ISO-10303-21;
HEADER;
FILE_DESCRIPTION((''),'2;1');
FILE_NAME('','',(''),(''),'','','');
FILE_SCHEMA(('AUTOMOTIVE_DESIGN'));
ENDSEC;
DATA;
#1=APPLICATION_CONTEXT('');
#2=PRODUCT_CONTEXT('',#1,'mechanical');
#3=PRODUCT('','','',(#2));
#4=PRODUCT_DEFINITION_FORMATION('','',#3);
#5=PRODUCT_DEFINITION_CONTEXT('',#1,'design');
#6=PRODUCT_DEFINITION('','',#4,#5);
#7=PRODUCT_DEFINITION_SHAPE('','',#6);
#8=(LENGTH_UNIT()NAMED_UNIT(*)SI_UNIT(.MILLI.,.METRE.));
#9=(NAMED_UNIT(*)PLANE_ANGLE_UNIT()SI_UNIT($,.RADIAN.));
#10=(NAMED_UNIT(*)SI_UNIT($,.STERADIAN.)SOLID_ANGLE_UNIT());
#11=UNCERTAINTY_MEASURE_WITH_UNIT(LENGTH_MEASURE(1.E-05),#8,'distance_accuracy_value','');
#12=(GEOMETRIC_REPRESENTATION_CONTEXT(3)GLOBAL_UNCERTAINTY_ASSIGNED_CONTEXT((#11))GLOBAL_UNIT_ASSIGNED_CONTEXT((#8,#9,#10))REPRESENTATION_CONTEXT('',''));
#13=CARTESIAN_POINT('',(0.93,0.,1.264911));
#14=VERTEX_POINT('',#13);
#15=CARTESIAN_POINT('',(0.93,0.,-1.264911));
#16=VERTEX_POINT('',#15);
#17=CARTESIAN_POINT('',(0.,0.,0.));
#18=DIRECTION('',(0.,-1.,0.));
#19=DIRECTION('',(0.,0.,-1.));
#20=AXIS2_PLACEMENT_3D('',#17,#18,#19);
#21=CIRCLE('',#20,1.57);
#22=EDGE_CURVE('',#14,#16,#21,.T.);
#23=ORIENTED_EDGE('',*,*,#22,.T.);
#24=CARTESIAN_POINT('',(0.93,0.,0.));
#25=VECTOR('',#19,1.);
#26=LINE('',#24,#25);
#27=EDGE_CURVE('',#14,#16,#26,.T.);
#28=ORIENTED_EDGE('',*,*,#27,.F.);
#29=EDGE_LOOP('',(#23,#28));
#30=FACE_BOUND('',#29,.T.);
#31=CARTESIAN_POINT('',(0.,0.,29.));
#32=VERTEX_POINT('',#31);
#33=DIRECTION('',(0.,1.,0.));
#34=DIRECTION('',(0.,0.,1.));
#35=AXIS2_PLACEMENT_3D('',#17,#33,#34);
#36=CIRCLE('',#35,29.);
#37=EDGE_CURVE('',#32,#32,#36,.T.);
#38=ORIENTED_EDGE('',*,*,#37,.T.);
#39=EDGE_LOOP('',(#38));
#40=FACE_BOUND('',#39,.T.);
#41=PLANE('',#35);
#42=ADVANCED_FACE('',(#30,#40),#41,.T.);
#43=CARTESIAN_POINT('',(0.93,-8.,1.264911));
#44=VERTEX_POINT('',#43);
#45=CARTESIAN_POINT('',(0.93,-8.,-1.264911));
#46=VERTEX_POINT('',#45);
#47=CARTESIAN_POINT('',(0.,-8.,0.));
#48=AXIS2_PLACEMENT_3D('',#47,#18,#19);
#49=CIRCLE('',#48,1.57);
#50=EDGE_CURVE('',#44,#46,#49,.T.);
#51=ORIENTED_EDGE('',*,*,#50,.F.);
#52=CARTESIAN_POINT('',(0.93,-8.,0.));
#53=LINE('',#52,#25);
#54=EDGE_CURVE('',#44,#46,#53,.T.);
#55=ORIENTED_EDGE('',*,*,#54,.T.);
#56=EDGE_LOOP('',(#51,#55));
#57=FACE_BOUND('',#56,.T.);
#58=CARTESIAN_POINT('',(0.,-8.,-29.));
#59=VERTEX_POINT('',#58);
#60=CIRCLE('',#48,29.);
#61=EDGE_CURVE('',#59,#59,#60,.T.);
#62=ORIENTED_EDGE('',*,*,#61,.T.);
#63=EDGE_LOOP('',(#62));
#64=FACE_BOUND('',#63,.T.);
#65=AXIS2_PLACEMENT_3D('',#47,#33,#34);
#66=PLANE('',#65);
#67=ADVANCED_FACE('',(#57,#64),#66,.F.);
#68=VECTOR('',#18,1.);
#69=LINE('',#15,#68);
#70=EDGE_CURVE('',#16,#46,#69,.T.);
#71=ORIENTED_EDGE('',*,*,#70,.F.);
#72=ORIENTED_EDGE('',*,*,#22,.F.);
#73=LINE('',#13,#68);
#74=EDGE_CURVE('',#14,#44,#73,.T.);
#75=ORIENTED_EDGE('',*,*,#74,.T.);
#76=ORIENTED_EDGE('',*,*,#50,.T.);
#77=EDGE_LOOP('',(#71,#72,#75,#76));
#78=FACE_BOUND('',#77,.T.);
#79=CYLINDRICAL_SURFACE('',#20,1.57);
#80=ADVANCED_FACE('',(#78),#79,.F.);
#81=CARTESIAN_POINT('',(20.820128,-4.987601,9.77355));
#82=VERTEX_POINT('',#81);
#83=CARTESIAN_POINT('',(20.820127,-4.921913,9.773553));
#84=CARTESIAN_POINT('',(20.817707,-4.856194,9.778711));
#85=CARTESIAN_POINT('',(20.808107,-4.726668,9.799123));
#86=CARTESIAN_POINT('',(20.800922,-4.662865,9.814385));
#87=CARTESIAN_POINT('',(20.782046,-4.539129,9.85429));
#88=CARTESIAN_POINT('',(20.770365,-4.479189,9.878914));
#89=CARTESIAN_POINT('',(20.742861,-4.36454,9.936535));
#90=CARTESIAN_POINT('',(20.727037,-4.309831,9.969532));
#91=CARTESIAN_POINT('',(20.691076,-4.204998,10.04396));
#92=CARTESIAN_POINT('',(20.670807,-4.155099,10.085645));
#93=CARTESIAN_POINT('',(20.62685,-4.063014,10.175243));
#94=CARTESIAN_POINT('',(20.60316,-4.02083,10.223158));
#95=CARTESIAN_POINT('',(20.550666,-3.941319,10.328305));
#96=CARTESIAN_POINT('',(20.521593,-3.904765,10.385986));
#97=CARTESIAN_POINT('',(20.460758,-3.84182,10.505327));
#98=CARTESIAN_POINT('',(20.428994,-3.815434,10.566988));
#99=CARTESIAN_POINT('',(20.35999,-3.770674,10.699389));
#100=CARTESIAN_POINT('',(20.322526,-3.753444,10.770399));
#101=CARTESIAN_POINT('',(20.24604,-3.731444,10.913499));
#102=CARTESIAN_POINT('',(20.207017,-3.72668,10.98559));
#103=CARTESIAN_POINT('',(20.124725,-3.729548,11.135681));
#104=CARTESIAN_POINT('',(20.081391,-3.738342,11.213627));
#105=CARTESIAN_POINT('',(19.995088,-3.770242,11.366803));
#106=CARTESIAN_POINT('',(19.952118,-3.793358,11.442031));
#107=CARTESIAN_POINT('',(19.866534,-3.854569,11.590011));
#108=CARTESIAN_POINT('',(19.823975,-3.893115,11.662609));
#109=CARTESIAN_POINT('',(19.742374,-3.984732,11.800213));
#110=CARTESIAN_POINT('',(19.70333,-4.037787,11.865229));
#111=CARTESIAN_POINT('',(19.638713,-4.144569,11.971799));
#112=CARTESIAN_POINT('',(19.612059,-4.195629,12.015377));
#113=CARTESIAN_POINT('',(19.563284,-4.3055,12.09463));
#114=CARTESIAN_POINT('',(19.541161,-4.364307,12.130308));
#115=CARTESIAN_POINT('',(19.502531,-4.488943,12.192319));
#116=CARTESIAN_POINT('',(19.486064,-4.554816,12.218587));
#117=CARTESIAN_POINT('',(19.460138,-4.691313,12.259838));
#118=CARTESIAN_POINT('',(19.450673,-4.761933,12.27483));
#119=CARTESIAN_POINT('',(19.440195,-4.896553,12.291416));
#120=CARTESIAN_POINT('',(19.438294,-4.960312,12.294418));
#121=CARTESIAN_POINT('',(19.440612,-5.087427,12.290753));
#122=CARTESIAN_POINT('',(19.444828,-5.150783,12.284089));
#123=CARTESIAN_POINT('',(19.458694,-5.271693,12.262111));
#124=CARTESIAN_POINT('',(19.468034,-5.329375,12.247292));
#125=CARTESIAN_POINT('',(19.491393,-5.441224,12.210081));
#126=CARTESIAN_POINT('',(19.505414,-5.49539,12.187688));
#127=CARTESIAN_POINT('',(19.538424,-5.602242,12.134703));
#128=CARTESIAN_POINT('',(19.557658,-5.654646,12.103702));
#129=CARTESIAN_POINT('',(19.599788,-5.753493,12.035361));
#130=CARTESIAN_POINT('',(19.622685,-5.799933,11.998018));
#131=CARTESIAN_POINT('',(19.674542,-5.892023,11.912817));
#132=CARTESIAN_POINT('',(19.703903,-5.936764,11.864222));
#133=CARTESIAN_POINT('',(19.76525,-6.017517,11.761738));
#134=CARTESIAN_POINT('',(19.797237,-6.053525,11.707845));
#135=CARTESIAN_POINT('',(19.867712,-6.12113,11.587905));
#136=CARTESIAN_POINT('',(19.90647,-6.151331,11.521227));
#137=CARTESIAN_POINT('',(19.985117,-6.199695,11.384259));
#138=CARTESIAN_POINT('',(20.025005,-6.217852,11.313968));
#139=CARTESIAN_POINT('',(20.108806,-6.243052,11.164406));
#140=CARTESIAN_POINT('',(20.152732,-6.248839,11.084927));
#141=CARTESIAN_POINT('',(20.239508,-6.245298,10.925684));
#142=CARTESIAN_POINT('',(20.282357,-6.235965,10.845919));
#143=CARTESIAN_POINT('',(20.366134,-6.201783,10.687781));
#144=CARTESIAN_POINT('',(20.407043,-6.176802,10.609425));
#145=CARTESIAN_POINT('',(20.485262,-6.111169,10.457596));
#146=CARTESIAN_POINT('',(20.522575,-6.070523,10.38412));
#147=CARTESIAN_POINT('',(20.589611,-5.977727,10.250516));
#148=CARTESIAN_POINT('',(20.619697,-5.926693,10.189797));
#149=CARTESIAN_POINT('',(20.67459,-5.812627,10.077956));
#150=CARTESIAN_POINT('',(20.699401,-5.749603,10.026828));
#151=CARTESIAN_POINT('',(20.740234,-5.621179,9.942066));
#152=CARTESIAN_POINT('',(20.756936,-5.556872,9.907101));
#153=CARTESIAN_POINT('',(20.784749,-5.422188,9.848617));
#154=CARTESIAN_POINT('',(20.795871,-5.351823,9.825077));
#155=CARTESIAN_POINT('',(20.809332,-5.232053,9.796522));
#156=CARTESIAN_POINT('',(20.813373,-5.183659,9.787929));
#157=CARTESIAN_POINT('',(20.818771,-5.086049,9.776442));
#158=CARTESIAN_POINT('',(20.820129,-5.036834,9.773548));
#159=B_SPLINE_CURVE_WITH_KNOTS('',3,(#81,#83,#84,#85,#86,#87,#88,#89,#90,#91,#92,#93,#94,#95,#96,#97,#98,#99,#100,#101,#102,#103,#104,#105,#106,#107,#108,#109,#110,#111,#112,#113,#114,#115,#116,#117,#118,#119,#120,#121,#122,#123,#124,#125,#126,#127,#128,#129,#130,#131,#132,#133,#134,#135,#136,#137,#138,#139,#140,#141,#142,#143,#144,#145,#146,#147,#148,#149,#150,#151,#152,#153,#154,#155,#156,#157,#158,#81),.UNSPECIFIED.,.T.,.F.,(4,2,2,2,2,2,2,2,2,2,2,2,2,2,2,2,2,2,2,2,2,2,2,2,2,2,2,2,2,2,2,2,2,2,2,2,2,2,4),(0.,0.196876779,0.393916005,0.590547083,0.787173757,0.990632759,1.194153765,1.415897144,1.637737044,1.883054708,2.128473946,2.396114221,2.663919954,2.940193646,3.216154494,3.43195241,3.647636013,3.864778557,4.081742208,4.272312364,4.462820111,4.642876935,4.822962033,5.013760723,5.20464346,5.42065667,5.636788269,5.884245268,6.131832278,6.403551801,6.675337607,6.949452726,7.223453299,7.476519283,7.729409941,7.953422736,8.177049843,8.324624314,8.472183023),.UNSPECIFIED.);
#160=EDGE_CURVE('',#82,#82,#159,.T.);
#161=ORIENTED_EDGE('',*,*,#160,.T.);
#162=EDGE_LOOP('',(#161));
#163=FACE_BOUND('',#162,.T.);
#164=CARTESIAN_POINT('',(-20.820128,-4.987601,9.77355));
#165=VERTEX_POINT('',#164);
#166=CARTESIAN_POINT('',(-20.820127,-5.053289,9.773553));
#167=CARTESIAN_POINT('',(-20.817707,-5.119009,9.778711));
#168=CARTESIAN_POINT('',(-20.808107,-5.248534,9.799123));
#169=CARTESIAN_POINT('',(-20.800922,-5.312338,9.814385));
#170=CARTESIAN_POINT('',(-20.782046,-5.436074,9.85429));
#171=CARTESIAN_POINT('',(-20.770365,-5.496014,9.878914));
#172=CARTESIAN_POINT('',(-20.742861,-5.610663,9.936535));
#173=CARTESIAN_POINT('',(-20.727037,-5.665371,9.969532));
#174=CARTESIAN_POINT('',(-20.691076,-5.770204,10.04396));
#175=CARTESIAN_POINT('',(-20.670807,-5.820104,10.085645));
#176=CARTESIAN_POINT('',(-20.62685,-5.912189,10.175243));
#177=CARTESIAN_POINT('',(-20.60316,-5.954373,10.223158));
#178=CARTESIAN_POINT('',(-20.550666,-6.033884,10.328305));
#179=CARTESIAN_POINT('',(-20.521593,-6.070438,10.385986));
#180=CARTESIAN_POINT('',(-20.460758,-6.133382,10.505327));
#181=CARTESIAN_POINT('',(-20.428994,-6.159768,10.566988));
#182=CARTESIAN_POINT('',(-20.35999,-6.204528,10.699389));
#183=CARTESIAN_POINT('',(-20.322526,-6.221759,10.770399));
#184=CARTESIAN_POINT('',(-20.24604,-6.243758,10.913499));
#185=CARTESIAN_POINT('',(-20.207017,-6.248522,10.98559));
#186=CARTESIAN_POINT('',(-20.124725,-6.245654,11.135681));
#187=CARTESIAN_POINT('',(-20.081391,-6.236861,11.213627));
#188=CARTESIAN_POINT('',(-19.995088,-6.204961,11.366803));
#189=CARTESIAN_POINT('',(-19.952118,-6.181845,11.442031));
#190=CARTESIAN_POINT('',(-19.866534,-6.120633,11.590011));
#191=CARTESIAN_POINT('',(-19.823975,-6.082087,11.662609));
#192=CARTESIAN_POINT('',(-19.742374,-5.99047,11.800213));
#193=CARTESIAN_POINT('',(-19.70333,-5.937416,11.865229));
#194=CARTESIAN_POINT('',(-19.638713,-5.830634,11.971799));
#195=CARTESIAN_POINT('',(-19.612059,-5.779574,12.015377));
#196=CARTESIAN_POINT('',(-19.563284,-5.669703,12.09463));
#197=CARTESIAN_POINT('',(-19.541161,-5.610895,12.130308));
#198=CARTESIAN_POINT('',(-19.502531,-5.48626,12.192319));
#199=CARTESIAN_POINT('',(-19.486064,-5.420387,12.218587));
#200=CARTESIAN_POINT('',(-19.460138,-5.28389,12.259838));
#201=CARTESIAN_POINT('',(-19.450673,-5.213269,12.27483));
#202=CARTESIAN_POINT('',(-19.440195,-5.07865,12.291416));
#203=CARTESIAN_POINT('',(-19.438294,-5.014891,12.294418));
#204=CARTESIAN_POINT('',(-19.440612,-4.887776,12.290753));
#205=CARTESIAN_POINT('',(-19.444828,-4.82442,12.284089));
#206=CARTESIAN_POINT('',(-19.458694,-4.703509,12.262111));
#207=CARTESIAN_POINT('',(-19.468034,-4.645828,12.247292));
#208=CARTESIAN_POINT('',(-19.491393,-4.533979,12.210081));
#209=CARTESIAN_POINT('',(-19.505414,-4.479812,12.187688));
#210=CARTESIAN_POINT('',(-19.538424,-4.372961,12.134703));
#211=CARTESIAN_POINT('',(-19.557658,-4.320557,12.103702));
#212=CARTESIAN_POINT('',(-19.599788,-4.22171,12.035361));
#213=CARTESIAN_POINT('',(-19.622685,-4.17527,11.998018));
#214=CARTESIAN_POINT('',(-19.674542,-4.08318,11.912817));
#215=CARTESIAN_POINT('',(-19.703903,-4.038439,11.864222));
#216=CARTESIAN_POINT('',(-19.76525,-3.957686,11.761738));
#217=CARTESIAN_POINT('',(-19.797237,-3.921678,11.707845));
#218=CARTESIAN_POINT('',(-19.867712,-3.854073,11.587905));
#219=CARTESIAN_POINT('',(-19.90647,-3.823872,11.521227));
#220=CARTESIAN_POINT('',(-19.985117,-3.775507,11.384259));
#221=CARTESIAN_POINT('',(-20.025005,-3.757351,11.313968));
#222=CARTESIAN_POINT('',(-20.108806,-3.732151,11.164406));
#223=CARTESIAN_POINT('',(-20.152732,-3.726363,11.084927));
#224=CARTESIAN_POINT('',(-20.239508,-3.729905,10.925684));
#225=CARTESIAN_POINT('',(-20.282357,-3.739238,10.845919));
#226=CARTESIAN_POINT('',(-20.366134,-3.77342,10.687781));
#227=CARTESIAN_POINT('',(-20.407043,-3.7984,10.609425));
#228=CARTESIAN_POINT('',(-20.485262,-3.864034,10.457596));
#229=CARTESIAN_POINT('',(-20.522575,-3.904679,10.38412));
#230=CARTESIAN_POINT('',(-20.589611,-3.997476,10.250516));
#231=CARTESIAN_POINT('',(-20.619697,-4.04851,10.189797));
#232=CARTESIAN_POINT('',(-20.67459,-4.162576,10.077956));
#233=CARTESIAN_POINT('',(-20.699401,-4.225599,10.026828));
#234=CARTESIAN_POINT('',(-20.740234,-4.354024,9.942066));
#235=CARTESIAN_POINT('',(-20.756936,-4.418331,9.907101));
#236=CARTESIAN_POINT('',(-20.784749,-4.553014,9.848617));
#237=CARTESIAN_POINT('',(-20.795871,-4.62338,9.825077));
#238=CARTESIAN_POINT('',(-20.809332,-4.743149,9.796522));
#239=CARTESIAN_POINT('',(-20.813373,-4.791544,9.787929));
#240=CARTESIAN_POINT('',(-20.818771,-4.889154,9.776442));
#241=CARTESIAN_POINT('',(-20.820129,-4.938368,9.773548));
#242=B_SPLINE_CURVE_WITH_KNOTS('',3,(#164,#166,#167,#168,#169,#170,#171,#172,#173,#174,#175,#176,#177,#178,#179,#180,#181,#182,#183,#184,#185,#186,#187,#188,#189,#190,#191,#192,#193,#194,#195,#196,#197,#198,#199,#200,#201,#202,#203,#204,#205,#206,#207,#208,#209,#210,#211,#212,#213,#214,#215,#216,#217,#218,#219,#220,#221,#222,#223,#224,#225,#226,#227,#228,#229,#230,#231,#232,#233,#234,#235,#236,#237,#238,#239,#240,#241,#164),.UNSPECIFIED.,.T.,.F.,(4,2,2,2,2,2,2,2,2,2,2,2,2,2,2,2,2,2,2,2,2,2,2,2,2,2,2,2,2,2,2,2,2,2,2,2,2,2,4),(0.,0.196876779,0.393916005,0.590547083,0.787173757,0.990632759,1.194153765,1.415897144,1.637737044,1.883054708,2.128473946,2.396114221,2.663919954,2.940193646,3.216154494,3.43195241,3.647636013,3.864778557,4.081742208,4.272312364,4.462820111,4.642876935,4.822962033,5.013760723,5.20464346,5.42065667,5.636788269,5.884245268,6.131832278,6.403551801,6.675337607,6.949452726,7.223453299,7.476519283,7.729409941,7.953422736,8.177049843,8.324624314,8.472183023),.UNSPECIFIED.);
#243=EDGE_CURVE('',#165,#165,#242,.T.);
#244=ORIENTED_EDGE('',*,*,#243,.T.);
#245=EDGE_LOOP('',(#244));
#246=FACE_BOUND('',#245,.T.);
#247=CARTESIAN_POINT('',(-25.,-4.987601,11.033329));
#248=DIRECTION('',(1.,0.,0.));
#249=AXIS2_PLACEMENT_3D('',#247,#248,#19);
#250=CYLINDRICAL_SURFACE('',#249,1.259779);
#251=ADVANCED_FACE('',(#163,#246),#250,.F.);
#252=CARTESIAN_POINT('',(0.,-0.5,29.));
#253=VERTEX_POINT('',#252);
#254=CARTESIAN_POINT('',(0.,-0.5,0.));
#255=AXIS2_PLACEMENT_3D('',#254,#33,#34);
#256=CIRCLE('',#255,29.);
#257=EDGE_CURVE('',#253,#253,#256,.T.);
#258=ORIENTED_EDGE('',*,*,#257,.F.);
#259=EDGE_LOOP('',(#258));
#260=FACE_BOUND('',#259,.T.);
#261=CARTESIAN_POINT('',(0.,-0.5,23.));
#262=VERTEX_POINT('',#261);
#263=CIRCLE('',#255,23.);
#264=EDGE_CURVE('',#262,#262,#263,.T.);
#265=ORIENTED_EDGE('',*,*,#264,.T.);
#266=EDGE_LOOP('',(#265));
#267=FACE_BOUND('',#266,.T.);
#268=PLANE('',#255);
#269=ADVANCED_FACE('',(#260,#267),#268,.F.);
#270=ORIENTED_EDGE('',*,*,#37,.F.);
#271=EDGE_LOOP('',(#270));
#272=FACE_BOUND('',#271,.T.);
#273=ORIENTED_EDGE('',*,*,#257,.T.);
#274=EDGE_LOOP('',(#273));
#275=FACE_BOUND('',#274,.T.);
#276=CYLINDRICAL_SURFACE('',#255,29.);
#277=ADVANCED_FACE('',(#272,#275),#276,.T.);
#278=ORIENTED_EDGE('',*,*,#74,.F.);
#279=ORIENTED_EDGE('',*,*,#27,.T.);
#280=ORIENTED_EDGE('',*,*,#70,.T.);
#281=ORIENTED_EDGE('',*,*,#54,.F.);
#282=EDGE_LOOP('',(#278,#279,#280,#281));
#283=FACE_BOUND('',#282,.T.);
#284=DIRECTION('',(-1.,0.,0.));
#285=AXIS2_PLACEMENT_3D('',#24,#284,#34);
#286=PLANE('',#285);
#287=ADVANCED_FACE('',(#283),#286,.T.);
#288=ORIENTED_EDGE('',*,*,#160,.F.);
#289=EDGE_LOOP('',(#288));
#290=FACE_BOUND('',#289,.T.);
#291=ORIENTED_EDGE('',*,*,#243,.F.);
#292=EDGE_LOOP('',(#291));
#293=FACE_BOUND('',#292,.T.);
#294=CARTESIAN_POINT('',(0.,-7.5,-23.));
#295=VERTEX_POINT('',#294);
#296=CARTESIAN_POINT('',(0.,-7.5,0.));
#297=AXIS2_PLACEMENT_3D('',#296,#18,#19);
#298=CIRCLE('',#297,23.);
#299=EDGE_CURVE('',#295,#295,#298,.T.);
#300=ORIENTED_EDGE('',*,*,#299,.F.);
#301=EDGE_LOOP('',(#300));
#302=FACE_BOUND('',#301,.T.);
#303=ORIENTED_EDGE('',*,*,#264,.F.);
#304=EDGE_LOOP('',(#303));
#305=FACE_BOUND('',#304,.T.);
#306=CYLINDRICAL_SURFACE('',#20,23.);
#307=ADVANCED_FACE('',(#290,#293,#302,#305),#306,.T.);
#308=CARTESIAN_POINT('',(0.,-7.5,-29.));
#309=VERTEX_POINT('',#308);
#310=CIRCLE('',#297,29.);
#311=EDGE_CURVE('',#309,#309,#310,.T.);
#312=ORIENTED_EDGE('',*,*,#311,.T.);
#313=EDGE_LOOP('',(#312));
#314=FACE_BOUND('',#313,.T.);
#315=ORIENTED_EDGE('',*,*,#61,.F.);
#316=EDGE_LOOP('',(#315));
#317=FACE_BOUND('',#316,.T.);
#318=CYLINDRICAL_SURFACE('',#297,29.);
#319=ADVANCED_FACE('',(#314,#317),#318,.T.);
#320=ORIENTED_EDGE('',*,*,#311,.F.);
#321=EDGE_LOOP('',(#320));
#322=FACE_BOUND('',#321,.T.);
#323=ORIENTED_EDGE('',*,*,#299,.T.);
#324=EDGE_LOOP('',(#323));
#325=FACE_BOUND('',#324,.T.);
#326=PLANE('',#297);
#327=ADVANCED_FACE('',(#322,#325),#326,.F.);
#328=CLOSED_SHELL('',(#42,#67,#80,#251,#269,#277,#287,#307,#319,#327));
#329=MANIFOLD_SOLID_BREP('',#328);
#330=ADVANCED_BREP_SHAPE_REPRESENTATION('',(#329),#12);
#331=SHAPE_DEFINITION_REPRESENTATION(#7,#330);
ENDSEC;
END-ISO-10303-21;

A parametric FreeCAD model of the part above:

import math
import FreeCAD as App
import Part
import Sketcher
Q = App.Units.Quantity

doc = App.newDocument("Part")
body = doc.addObject("PartDesign::Body", "Body")

sketch1 = body.newObject("Sketcher::SketchObject", "Sketch")
sketch1.AttachmentSupport = (doc.getObject("XZ_Plane"), [""])
sketch1.MapMode = "FlatFace"
sketch1.addGeometry(Part.Circle(App.Vector(0, 0, 0), App.Vector(0, 0, 1), 9), False)
sketch1.addConstraint(Sketcher.Constraint("Coincident", 0, 3, -1, 1))
sketch1.addConstraint(Sketcher.Constraint("Diameter", 0, Q("18 mm")))
pad1 = body.newObject("PartDesign::Pad", "Pad")
pad1.Profile = sketch1
pad1.Length = 8

sketch2 = body.newObject("Sketcher::SketchObject", "Sketch001")
sketch2.AttachmentSupport = (doc.getObject("XZ_Plane"), [""])
sketch2.MapMode = "FlatFace"
sketch2.AttachmentOffset = App.Placement(App.Vector(0, 0, 8), App.Rotation())
sketch2.addGeometry(Part.LineSegment(App.Vector(0.9, -1.3, 0), App.Vector(0.9, 1.3, 0)), False)
sketch2.addGeometry(Part.ArcOfCircle(Part.Circle(App.Vector(0, 0, 0), App.Vector(0, 0, 1), 1.6), math.radians(54), math.radians(180)), False)
sketch2.addGeometry(Part.ArcOfCircle(Part.Circle(App.Vector(0, 0, 0), App.Vector(0, 0, 1), 1.6), math.radians(180), math.radians(306)), False)
sketch2.addConstraint(Sketcher.Constraint("Coincident", 0, 2, 1, 1))
sketch2.addConstraint(Sketcher.Constraint("Tangent", 1, 2, 2, 1))
sketch2.addConstraint(Sketcher.Constraint("Coincident", 2, 2, 0, 1))
sketch2.addConstraint(Sketcher.Constraint("Vertical", 0))
sketch2.addConstraint(Sketcher.Constraint("Coincident", 1, 3, -1, 1))
sketch2.addConstraint(Sketcher.Constraint("Equal", 1, 2))
sketch2.addConstraint(Sketcher.Constraint("PointOnObject", 1, 2, -1))
sketch2.addConstraint(Sketcher.Constraint("Radius", 1, Q("1.57 mm")))
sketch2.addConstraint(Sketcher.Constraint("DistanceX", 1, 2, 0, 2, Q("2.5 mm")))
pocket1 = body.newObject("PartDesign::Pocket", "Pocket")
pocket1.Profile = sketch2
pocket1.Type = "ThroughAll"

sketch3 = body.newObject("Sketcher::SketchObject", "Sketch002")
sketch3.AttachmentSupport = (doc.getObject("XZ_Plane"), [""])
sketch3.MapMode = "FlatFace"
sketch3.addGeometry(Part.Circle(App.Vector(0, 0, 0), App.Vector(0, 0, 1), 23), False)
sketch3.addGeometry(Part.Circle(App.Vector(0, 0, 0), App.Vector(0, 0, 1), 9), False)
sketch3.addConstraint(Sketcher.Constraint("Coincident", 0, 3, -1, 1))
sketch3.addConstraint(Sketcher.Constraint("Coincident", 1, 3, -1, 1))
sketch3.addConstraint(Sketcher.Constraint("Diameter", 0, Q("46 mm")))
sketch3.addConstraint(Sketcher.Constraint("Diameter", 1, Q("18 mm")))
pad2 = body.newObject("PartDesign::Pad", "Pad001")
pad2.Profile = sketch3
pad2.Length = 8

sketch4 = body.newObject("Sketcher::SketchObject", "Sketch003")
sketch4.AttachmentSupport = (doc.getObject("XZ_Plane"), [""])
sketch4.MapMode = "FlatFace"
sketch4.addGeometry(Part.Circle(App.Vector(0, 0, 0), App.Vector(0, 0, 1), 29), False)
sketch4.addGeometry(Part.Circle(App.Vector(0, 0, 0), App.Vector(0, 0, 1), 23), False)
sketch4.addConstraint(Sketcher.Constraint("Coincident", 0, 3, -1, 1))
sketch4.addConstraint(Sketcher.Constraint("Coincident", 1, 3, -1, 1))
sketch4.addConstraint(Sketcher.Constraint("Diameter", 0, Q("58 mm")))
sketch4.addConstraint(Sketcher.Constraint("Diameter", 1, Q("46 mm")))
pad3 = body.newObject("PartDesign::Pad", "Pad002")
pad3.Profile = sketch4
pad3.Length = 0.5

sketch5 = body.newObject("Sketcher::SketchObject", "Sketch004")
sketch5.AttachmentSupport = (doc.getObject("XZ_Plane"), [""])
sketch5.MapMode = "FlatFace"
sketch5.AttachmentOffset = App.Placement(App.Vector(0, 0, 7.5), App.Rotation())
sketch5.addGeometry(Part.Circle(App.Vector(0, 0, 0), App.Vector(0, 0, 1), 29), False)
sketch5.addGeometry(Part.Circle(App.Vector(0, 0, 0), App.Vector(0, 0, 1), 23), False)
sketch5.addConstraint(Sketcher.Constraint("Coincident", 0, 3, -1, 1))
sketch5.addConstraint(Sketcher.Constraint("Coincident", 1, 3, -1, 1))
sketch5.addConstraint(Sketcher.Constraint("Diameter", 0, Q("58 mm")))
sketch5.addConstraint(Sketcher.Constraint("Diameter", 1, Q("46 mm")))
pad4 = body.newObject("PartDesign::Pad", "Pad003")
pad4.Profile = sketch5
pad4.Length = 0.5

sketch6 = body.newObject("Sketcher::SketchObject", "Sketch005")
sketch6.AttachmentSupport = (doc.getObject("YZ_Plane"), [""])
sketch6.MapMode = "FlatFace"
sketch6.addGeometry(Part.Circle(App.Vector(-5, 11, 0), App.Vector(0, 0, 1), 1.3), False)
sketch6.addConstraint(Sketcher.Constraint("Diameter", 0, Q("2.519558 mm")))
sketch6.addConstraint(Sketcher.Constraint("DistanceX", 0, 3, -1, 1, Q("4.987601 mm")))
sketch6.addConstraint(Sketcher.Constraint("DistanceY", -1, 1, 0, 3, Q("11.033329 mm")))
pocket2 = body.newObject("PartDesign::Pocket", "Pocket001")
pocket2.Profile = sketch6
pocket2.Length = 50
pocket2.Midplane = True

doc.recompute()
